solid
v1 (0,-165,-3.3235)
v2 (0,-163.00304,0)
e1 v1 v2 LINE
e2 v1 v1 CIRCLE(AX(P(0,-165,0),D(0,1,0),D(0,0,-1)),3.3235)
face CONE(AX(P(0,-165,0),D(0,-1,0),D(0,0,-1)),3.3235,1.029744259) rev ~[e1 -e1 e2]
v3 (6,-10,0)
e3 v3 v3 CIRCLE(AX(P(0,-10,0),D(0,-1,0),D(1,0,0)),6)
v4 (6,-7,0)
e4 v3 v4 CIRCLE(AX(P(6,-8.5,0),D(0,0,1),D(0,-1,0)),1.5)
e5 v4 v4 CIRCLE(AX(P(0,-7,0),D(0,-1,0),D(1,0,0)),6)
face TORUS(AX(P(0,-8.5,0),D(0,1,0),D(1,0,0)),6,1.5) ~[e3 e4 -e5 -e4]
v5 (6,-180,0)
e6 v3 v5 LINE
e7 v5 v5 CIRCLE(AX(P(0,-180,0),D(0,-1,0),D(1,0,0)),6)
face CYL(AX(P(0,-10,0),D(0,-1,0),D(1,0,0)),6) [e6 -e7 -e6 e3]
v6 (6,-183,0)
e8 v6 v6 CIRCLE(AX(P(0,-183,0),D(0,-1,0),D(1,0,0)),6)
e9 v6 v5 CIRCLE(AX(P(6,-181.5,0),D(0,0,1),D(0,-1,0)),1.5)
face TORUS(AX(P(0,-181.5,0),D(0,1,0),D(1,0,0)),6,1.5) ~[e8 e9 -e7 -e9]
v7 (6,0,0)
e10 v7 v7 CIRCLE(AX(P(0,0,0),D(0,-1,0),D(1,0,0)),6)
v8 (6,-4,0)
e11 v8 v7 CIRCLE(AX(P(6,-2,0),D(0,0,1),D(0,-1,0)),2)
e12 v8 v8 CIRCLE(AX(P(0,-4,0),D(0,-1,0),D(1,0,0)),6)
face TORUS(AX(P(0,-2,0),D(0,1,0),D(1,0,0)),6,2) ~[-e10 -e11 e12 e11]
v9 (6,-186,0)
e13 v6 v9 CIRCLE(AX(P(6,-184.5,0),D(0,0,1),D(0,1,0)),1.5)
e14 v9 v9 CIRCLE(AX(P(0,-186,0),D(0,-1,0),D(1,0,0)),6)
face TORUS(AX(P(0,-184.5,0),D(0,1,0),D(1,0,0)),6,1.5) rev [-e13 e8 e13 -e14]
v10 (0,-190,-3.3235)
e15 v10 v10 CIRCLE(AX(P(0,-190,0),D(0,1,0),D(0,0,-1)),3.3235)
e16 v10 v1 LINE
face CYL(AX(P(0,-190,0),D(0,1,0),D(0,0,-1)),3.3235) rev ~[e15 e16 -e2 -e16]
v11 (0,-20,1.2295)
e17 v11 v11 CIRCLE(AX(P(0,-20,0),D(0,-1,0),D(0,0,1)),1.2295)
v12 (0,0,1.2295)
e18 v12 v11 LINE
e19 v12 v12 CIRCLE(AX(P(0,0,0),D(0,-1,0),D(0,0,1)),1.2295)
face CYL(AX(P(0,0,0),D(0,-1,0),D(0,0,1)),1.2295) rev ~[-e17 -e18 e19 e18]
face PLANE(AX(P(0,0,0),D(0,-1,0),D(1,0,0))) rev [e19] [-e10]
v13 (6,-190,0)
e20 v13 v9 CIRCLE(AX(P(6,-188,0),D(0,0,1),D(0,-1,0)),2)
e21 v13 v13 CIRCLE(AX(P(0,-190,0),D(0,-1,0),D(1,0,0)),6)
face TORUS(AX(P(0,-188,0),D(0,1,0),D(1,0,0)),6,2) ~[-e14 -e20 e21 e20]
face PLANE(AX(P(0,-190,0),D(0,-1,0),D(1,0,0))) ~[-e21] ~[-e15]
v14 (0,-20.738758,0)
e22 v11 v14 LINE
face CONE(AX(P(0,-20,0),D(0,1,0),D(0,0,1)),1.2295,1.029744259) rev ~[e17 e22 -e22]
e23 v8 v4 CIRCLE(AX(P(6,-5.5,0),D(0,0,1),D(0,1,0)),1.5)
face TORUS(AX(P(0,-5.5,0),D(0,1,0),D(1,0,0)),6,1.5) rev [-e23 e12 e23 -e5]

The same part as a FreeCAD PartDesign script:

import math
import FreeCAD as App
import Part
import Sketcher

V = App.Vector

doc = App.newDocument("Part")
body = doc.addObject("PartDesign::Body", "Body")

sketch1 = doc.addObject("Sketcher::SketchObject", "Sketch")
body.addObject(sketch1)
sketch1.AttachmentSupport = (doc.XY_Plane, [""])
sketch1.MapMode = "FlatFace"
sketch1.addGeometry([
    Part.LineSegment(V(6, 0, 0), V(0, 0, 0)),
    Part.LineSegment(V(0, 0, 0), V(0, -190, 0)),
    Part.LineSegment(V(0, -190, 0), V(6, -190, 0)),
    Part.ArcOfCircle(Part.Circle(V(6, -188, 0), V(0, 0, 1), 2), math.radians(-90), math.radians(90)),
    Part.ArcOfCircle(Part.Circle(V(6, -184.5, 0), V(0, 0, 1), 1.5), math.radians(90), math.radians(270)),
    Part.ArcOfCircle(Part.Circle(V(6, -181.5, 0), V(0, 0, 1), 1.5), math.radians(-90), math.radians(90)),
    Part.LineSegment(V(6, -180, 0), V(6, -10, 0)),
    Part.ArcOfCircle(Part.Circle(V(6, -8.5, 0), V(0, 0, 1), 1.5), math.radians(-90), math.radians(90)),
    Part.ArcOfCircle(Part.Circle(V(6, -5.5, 0), V(0, 0, 1), 1.5), math.radians(90), math.radians(270)),
    Part.ArcOfCircle(Part.Circle(V(6, -2, 0), V(0, 0, 1), 2), math.radians(-90), math.radians(90)),
], False)
sketch1.addConstraint([
    Sketcher.Constraint("Coincident", 0, 2, 1, 1),
    Sketcher.Constraint("Coincident", 1, 2, 2, 1),
    Sketcher.Constraint("Tangent", 2, 2, 3, 1),
    Sketcher.Constraint("Tangent", 3, 2, 4, 2),
    Sketcher.Constraint("Tangent", 4, 1, 5, 1),
    Sketcher.Constraint("Coincident", 5, 2, 6, 1),
    Sketcher.Constraint("Coincident", 6, 2, 7, 1),
    Sketcher.Constraint("Tangent", 7, 2, 8, 2),
    Sketcher.Constraint("Tangent", 8, 1, 9, 1),
    Sketcher.Constraint("Tangent", 9, 2, 0, 1),
    Sketcher.Constraint("Horizontal", 0),
    Sketcher.Constraint("Vertical", 1),
    Sketcher.Constraint("Horizontal", 2),
    Sketcher.Constraint("Vertical", 6),
    Sketcher.Constraint("Coincident", 0, 2, -1, 1),
    Sketcher.Constraint("Equal", 4, 5),
    Sketcher.Constraint("Equal", 5, 7),
    Sketcher.Constraint("Equal", 7, 8),
    Sketcher.Constraint("Equal", 3, 9),
    Sketcher.Constraint("Vertical", 3, 3, 4, 3),
    Sketcher.Constraint("Vertical", 4, 3, 5, 3),
    Sketcher.Constraint("Vertical", 5, 3, 7, 3),
    Sketcher.Constraint("Vertical", 7, 3, 8, 3),
    Sketcher.Constraint("Vertical", 8, 3, 9, 3),
    Sketcher.Constraint("Vertical", 4, 1, 5, 2),
    Sketcher.Constraint("Radius", 3, 2.0),
    Sketcher.Constraint("Radius", 4, 1.5),
    Sketcher.Constraint("DistanceX", 0, 2, 0, 1, 6.0),
    Sketcher.Constraint("DistanceY", 1, 2, 1, 1, 190.0),
])
revolution = doc.addObject("PartDesign::Revolution", "Revolution")
body.addObject(revolution)
revolution.Profile = sketch1
revolution.ReferenceAxis = (sketch1, ["V_Axis"])
revolution.Angle = 360

sketch2 = doc.addObject("Sketcher::SketchObject", "Sketch001")
body.addObject(sketch2)
sketch2.AttachmentSupport = (doc.XZ_Plane, [""])
sketch2.MapMode = "FlatFace"
sketch2.AttachmentOffset = App.Placement(V(0, 0, 190), App.Rotation())
sketch2.addGeometry(Part.Circle(V(0, 0, 0), V(0, 0, 1), 3.3235), False)
sketch2.addConstraint([
    Sketcher.Constraint("Coincident", 0, 3, -1, 1),
    Sketcher.Constraint("Diameter", 0, 6.647),
])
doc.recompute()
hole = doc.addObject("PartDesign::Hole", "Hole")
body.addObject(hole)
hole.Profile = sketch2
hole.ThreadType = "None"
hole.Diameter = 6.647
hole.DepthType = "Dimension"
hole.Depth = 25
hole.DrillPoint = "Angled"
hole.DrillPointAngle = 118

sketch3 = doc.addObject("Sketcher::SketchObject", "Sketch002")
body.addObject(sketch3)
sketch3.AttachmentSupport = (doc.XZ_Plane, [""])
sketch3.MapMode = "FlatFace"
sketch3.addGeometry(Part.Circle(V(0, 0, 0), V(0, 0, 1), 1.2295), False)
sketch3.addConstraint([
    Sketcher.Constraint("Coincident", 0, 3, -1, 1),
    Sketcher.Constraint("Diameter", 0, 2.459),
])
doc.recompute()
hole2 = doc.addObject("PartDesign::Hole", "Hole001")
body.addObject(hole2)
hole2.Profile = sketch3
hole2.ThreadType = "None"
hole2.Diameter = 2.459
hole2.DepthType = "Dimension"
hole2.Depth = 20
hole2.DrillPoint = "Angled"
hole2.DrillPointAngle = 118
hole2.Reversed = True

doc.recompute()
